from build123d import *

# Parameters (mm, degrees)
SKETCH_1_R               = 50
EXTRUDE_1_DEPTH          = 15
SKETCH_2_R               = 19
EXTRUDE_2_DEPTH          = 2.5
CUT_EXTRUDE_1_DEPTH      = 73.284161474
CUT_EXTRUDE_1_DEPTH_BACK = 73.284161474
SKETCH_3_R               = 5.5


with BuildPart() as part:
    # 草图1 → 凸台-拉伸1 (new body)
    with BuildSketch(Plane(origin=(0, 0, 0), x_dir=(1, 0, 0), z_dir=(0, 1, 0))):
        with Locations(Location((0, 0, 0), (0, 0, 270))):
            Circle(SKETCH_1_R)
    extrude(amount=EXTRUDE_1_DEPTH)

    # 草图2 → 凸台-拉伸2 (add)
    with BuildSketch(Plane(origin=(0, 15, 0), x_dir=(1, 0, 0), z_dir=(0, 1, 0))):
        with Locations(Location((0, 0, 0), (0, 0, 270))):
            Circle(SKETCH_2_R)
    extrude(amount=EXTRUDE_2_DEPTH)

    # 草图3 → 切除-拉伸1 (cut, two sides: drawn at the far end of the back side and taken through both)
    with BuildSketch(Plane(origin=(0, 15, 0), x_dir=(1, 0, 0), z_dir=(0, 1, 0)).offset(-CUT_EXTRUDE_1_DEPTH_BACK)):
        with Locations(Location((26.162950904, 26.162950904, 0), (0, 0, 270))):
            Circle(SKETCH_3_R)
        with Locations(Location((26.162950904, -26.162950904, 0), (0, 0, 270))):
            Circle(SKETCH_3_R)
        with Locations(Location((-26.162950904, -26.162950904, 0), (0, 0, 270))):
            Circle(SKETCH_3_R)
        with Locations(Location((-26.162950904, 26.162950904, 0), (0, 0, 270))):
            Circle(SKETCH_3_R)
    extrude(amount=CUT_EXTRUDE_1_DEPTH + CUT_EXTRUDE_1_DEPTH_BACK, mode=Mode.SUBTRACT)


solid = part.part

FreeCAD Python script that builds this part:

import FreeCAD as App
import Part
import Sketcher
from FreeCAD import Vector
Q = App.Units.Quantity

doc = App.newDocument("Part")
body = doc.addObject("PartDesign::Body", "Body")

# Sketch on XZ plane
sketch1 = body.newObject("Sketcher::SketchObject", "Sketch")
sketch1.AttachmentSupport = (doc.getObject("XZ_Plane"), [""])
sketch1.MapMode = "FlatFace"
sketch1.addGeometry(Part.Circle(Vector(0, 0, 0), Vector(0, 0, 1), 50), False)
sketch1.addConstraint(Sketcher.Constraint("Coincident", 0, 3, -1, 1))
sketch1.addConstraint(Sketcher.Constraint("Diameter", 0, Q("100 mm")))
pad1 = body.newObject("PartDesign::Pad", "Pad")
pad1.Profile = sketch1
pad1.Length = 15
pad1.Reversed = True

# Sketch on XZ plane
sketch2 = body.newObject("Sketcher::SketchObject", "Sketch001")
sketch2.AttachmentSupport = (doc.getObject("XZ_Plane"), [""])
sketch2.MapMode = "FlatFace"
sketch2.AttachmentOffset = App.Placement(Vector(0, 0, -15), App.Rotation())
sketch2.addGeometry(Part.Circle(Vector(0, 0, 0), Vector(0, 0, 1), 19), False)
sketch2.addConstraint(Sketcher.Constraint("Coincident", 0, 3, -1, 1))
sketch2.addConstraint(Sketcher.Constraint("Diameter", 0, Q("38 mm")))
pad2 = body.newObject("PartDesign::Pad", "Pad001")
pad2.Profile = sketch2
pad2.Length = 2.5
pad2.Reversed = True

# Sketch on XZ plane
sketch3 = body.newObject("Sketcher::SketchObject", "Sketch002")
sketch3.AttachmentSupport = (doc.getObject("XZ_Plane"), [""])
sketch3.MapMode = "FlatFace"
sketch3.AttachmentOffset = App.Placement(Vector(0, 0, -15), App.Rotation())
sketch3.addGeometry(Part.Circle(Vector(26, -26, 0), Vector(0, 0, 1), 6), False)
sketch3.addGeometry(Part.Circle(Vector(26, 26, 0), Vector(0, 0, 1), 6), False)
sketch3.addGeometry(Part.Circle(Vector(-26, 26, 0), Vector(0, 0, 1), 6), False)
sketch3.addGeometry(Part.Circle(Vector(-26, -26, 0), Vector(0, 0, 1), 6), False)
sketch3.addConstraint(Sketcher.Constraint("Equal", 0, 1))
sketch3.addConstraint(Sketcher.Constraint("Equal", 1, 2))
sketch3.addConstraint(Sketcher.Constraint("Equal", 2, 3))
sketch3.addConstraint(Sketcher.Constraint("Symmetric", 0, 3, 2, 3, -1, 1))
sketch3.addConstraint(Sketcher.Constraint("Symmetric", 1, 3, 3, 3, -1, 1))
sketch3.addConstraint(Sketcher.Constraint("Symmetric", 1, 3, 2, 3, -2))
sketch3.addConstraint(Sketcher.Constraint("Diameter", 0, Q("11 mm")))
sketch3.addConstraint(Sketcher.Constraint("DistanceY", 0, 3, 1, 3, Q("52.325902 mm")))
sketch3.addConstraint(Sketcher.Constraint("DistanceX", 2, 3, 1, 3, Q("52.325902 mm")))
pocket1 = body.newObject("PartDesign::Pocket", "Pocket")
pocket1.Profile = sketch3
pocket1.Type = "ThroughAll"
pocket1.Midplane = True

doc.recompute()
